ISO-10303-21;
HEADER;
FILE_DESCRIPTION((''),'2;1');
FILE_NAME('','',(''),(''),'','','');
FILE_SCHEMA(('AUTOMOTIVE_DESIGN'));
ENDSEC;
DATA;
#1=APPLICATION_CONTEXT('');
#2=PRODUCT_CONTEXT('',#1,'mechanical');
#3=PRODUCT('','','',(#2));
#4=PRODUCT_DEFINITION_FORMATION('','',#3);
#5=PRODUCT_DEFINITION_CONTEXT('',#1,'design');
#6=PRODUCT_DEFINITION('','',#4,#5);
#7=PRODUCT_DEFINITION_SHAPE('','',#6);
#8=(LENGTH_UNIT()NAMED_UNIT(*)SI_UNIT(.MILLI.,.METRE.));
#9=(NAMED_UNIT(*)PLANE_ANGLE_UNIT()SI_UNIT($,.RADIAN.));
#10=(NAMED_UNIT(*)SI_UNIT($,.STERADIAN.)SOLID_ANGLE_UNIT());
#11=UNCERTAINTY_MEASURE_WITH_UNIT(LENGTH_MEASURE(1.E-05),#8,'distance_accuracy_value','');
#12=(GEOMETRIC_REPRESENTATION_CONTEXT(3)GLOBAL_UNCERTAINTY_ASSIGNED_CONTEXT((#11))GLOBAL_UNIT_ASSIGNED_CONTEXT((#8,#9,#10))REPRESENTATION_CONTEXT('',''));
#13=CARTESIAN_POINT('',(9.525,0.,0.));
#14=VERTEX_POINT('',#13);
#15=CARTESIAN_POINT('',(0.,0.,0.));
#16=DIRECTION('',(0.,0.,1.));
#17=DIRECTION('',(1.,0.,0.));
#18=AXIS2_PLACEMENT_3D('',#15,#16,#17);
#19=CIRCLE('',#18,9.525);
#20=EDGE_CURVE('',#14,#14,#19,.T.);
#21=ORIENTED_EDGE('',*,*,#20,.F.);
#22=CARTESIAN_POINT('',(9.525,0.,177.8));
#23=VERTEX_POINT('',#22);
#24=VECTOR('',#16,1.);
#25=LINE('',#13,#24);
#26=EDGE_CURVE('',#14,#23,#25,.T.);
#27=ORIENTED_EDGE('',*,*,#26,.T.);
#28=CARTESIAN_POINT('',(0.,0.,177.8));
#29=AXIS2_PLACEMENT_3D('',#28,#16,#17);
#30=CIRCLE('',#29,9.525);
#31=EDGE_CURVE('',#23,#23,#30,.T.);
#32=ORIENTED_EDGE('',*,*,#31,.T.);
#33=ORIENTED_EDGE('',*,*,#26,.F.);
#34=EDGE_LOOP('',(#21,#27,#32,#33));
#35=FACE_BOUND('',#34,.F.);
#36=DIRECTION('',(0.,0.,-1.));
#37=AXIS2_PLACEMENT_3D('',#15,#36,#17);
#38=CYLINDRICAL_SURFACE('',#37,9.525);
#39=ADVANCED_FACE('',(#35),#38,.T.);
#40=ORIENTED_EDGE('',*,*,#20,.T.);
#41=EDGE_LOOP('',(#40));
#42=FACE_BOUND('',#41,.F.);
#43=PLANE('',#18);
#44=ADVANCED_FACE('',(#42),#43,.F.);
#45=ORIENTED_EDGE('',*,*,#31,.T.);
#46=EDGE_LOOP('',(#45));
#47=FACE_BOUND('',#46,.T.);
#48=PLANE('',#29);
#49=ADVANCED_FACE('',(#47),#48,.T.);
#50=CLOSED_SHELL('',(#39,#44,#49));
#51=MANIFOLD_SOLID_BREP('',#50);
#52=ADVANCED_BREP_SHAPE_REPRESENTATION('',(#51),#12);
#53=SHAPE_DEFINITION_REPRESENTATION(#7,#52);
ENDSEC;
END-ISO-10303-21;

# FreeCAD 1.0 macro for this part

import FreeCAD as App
import Part
import Sketcher

V = App.Vector
Q = App.Units.Quantity

doc = App.newDocument("Part")
body = doc.addObject("PartDesign::Body", "Body")

# Sketch on XY plane
sketch1 = body.newObject("Sketcher::SketchObject", "Sketch")
sketch1.AttachmentSupport = (doc.getObject("XY_Plane"), [""])
sketch1.MapMode = "FlatFace"
sketch1.addGeometry(Part.Circle(V(0, 0, 0), V(0, 0, 1), 10), False)
sketch1.addConstraint([
    Sketcher.Constraint("Coincident", 0, 3, -1, 1),
    Sketcher.Constraint("Diameter", 0, Q("0.75 in")),
])
pad1 = body.newObject("PartDesign::Pad", "Pad")
pad1.Profile = sketch1
pad1.Length = Q("7 in")

doc.recompute()
